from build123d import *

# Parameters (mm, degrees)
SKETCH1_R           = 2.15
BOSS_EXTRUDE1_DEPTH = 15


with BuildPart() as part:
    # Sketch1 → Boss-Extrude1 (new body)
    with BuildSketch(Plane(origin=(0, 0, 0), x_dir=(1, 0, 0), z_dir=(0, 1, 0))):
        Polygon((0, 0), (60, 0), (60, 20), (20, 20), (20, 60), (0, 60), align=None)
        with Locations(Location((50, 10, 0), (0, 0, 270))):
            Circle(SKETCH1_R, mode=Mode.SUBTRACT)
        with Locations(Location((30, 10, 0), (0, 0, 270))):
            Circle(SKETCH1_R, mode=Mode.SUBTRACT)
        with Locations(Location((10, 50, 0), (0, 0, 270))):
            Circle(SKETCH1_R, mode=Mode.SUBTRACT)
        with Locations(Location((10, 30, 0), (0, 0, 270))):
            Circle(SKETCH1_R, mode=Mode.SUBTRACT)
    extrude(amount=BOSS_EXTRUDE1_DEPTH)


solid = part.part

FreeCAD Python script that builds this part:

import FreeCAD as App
import Part
import Sketcher

V = App.Vector

doc = App.newDocument("Part")
params = doc.addObject("Spreadsheet::Sheet", "Params")
for row, (alias, value) in enumerate([
    ("sketch1_diameter", "4.3 mm"),
    ("sketch1_width", "60 mm"),
    ("sketch1_width2", "40 mm"),
    ("pad1_length", "15 mm"),
], start=1):
    params.set(f"A{row}", alias)
    params.set(f"B{row}", "=" + value)
    params.setAlias(f"B{row}", alias)

body = doc.addObject("PartDesign::Body", "Body")

# Sketch on XZ plane
sketch1 = body.newObject("Sketcher::SketchObject", "Sketch")
sketch1.AttachmentSupport = (doc.getObject("XZ_Plane"), [""])
sketch1.MapMode = "FlatFace"
sketch1.addGeometry(Part.LineSegment(V(0, 0, 0), V(60, 0, 0)), False)
sketch1.addGeometry(Part.LineSegment(V(60, 0, 0), V(60, -20, 0)), False)
sketch1.addGeometry(Part.LineSegment(V(60, -20, 0), V(20, -20, 0)), False)
sketch1.addGeometry(Part.LineSegment(V(20, -20, 0), V(20, -60, 0)), False)
sketch1.addGeometry(Part.LineSegment(V(20, -60, 0), V(0, -60, 0)), False)
sketch1.addGeometry(Part.LineSegment(V(0, -60, 0), V(0, 0, 0)), False)
sketch1.addGeometry(Part.Circle(V(30, -10, 0), V(0, 0, 1), 2.1), False)
sketch1.addGeometry(Part.Circle(V(50, -10, 0), V(0, 0, 1), 2.1), False)
sketch1.addGeometry(Part.Circle(V(10, -30, 0), V(0, 0, 1), 2.1), False)
sketch1.addGeometry(Part.Circle(V(10, -50, 0), V(0, 0, 1), 2.1), False)
sketch1.addConstraint(Sketcher.Constraint("Coincident", 0, 2, 1, 1))
sketch1.addConstraint(Sketcher.Constraint("Coincident", 1, 2, 2, 1))
sketch1.addConstraint(Sketcher.Constraint("Coincident", 2, 2, 3, 1))
sketch1.addConstraint(Sketcher.Constraint("Coincident", 3, 2, 4, 1))
sketch1.addConstraint(Sketcher.Constraint("Coincident", 4, 2, 5, 1))
sketch1.addConstraint(Sketcher.Constraint("Coincident", 5, 2, 0, 1))
sketch1.addConstraint(Sketcher.Constraint("Horizontal", 0))
sketch1.addConstraint(Sketcher.Constraint("Vertical", 1))
sketch1.addConstraint(Sketcher.Constraint("Horizontal", 2))
sketch1.addConstraint(Sketcher.Constraint("Vertical", 3))
sketch1.addConstraint(Sketcher.Constraint("Horizontal", 4))
sketch1.addConstraint(Sketcher.Constraint("Vertical", 5))
sketch1.addConstraint(Sketcher.Constraint("Coincident", 5, 2, -1, 1))
sketch1.addConstraint(Sketcher.Constraint("Equal", 6, 7))
sketch1.addConstraint(Sketcher.Constraint("Equal", 7, 8))
sketch1.addConstraint(Sketcher.Constraint("Equal", 8, 9))
sketch1.addConstraint(Sketcher.Constraint("Horizontal", 6, 3, 7, 3))
sketch1.addConstraint(Sketcher.Constraint("Vertical", 8, 3, 9, 3))
sketch1.addConstraint(Sketcher.Constraint("Equal", 4, 1))
sketch1.addConstraint(Sketcher.Constraint("Equal", 2, 3))
sketch1.addConstraint(Sketcher.Constraint("Diameter", 6, 4.3))
sketch1.addConstraint(Sketcher.Constraint("DistanceX", 0, 1, 0, 2, 60.0))
sketch1.addConstraint(Sketcher.Constraint("DistanceX", 2, 2, 2, 1, 40.0))
sketch1.addConstraint(Sketcher.Constraint("DistanceX", -1, 1, 6, 3, 30.0))
sketch1.addConstraint(Sketcher.Constraint("DistanceY", 6, 3, -1, 1, 10.0))
sketch1.addConstraint(Sketcher.Constraint("DistanceX", -1, 1, 7, 3, 50.0))
sketch1.addConstraint(Sketcher.Constraint("DistanceX", -1, 1, 8, 3, 10.0))
sketch1.addConstraint(Sketcher.Constraint("DistanceY", 8, 3, -1, 1, 30.0))
sketch1.addConstraint(Sketcher.Constraint("DistanceY", 9, 3, -1, 1, 50.0))
sketch1.setExpression("Constraints[20]", "Params.sketch1_diameter")
sketch1.setExpression("Constraints[21]", "Params.sketch1_width")
sketch1.setExpression("Constraints[22]", "Params.sketch1_width2")
pad1 = body.newObject("PartDesign::Pad", "Pad")
pad1.Profile = sketch1
pad1.setExpression("Length", "Params.pad1_length")
pad1.Reversed = True

doc.recompute()
